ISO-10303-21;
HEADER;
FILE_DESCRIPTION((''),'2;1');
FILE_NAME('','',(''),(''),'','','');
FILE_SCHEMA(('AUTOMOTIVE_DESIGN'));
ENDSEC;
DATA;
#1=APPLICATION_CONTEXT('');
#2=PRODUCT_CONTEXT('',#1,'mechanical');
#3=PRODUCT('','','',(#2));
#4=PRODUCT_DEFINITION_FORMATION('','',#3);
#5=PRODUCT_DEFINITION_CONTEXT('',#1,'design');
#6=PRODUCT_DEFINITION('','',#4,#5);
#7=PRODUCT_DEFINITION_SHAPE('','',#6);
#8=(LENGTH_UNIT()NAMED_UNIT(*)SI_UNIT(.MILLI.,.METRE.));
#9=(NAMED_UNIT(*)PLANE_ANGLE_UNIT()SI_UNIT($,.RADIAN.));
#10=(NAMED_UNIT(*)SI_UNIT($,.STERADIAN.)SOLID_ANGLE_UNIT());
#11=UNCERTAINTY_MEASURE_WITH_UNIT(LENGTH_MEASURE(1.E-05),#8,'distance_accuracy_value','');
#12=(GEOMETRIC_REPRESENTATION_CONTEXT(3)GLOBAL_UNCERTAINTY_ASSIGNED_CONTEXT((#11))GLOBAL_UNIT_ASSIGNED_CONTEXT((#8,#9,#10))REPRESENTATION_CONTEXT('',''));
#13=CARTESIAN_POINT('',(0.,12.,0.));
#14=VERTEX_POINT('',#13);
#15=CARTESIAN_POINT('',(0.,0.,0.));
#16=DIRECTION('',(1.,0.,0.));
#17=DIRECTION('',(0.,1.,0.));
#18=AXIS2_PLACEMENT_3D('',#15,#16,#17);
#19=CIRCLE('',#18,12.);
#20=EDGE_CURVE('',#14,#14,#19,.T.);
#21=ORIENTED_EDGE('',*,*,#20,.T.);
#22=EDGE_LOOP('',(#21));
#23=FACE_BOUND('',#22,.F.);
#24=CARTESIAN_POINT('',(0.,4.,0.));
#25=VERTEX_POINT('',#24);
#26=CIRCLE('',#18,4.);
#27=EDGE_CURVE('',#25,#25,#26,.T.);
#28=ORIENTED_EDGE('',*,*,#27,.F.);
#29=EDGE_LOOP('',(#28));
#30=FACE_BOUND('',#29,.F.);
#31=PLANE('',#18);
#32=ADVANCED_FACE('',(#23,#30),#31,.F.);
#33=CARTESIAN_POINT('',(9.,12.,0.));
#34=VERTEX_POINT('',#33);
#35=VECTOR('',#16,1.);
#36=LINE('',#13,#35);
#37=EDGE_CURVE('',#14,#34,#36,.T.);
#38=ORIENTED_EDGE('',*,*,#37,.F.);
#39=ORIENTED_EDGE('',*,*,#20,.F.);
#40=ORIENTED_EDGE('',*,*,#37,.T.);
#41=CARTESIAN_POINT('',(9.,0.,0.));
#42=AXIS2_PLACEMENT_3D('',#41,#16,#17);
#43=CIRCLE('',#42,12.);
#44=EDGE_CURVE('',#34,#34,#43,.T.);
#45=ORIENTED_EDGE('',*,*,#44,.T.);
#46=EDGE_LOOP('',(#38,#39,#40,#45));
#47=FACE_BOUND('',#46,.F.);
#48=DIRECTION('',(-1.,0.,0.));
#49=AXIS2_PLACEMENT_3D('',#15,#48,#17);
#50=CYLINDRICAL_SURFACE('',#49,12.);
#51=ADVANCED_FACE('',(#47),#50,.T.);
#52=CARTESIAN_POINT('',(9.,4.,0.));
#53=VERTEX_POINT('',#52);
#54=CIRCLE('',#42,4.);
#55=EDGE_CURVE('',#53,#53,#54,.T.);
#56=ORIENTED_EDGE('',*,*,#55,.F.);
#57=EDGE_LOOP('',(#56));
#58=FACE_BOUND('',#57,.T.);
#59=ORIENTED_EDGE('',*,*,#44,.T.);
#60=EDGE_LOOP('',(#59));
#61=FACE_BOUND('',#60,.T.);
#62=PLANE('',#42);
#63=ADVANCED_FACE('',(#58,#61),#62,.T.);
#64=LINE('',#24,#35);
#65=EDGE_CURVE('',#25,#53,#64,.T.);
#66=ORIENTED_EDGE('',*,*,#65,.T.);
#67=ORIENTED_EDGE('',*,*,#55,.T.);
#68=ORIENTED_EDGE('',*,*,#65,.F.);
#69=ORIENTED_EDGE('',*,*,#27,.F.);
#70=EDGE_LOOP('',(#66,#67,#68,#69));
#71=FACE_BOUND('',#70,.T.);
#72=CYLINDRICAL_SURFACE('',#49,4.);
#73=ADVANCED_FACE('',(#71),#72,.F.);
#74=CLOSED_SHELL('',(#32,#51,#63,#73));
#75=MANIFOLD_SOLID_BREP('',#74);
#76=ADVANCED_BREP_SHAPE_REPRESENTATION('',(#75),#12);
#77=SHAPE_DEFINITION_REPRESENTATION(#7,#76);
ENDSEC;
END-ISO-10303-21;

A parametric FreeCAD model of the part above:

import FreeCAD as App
import Part
import Sketcher

V = App.Vector
Q = App.Units.Quantity

doc = App.newDocument("Part")
body = doc.addObject("PartDesign::Body", "Body")

sketch1 = body.newObject("Sketcher::SketchObject", "Sketch")
sketch1.AttachmentSupport = (doc.getObject("YZ_Plane"), [""])
sketch1.MapMode = "FlatFace"
sketch1.addGeometry([
    Part.Circle(V(0, 0, 0), V(0, 0, 1), 12),
    Part.Circle(V(0, 0, 0), V(0, 0, 1), 4),
], False)
sketch1.addConstraint([
    Sketcher.Constraint("Coincident", 0, 3, -1, 1),
    Sketcher.Constraint("Coincident", 1, 3, -1, 1),
    Sketcher.Constraint("Diameter", 0, Q("24 mm")),
    Sketcher.Constraint("Diameter", 1, Q("8 mm")),
])
pad1 = body.newObject("PartDesign::Pad", "Pad")
pad1.Profile = sketch1
pad1.Length = 9

doc.recompute()
